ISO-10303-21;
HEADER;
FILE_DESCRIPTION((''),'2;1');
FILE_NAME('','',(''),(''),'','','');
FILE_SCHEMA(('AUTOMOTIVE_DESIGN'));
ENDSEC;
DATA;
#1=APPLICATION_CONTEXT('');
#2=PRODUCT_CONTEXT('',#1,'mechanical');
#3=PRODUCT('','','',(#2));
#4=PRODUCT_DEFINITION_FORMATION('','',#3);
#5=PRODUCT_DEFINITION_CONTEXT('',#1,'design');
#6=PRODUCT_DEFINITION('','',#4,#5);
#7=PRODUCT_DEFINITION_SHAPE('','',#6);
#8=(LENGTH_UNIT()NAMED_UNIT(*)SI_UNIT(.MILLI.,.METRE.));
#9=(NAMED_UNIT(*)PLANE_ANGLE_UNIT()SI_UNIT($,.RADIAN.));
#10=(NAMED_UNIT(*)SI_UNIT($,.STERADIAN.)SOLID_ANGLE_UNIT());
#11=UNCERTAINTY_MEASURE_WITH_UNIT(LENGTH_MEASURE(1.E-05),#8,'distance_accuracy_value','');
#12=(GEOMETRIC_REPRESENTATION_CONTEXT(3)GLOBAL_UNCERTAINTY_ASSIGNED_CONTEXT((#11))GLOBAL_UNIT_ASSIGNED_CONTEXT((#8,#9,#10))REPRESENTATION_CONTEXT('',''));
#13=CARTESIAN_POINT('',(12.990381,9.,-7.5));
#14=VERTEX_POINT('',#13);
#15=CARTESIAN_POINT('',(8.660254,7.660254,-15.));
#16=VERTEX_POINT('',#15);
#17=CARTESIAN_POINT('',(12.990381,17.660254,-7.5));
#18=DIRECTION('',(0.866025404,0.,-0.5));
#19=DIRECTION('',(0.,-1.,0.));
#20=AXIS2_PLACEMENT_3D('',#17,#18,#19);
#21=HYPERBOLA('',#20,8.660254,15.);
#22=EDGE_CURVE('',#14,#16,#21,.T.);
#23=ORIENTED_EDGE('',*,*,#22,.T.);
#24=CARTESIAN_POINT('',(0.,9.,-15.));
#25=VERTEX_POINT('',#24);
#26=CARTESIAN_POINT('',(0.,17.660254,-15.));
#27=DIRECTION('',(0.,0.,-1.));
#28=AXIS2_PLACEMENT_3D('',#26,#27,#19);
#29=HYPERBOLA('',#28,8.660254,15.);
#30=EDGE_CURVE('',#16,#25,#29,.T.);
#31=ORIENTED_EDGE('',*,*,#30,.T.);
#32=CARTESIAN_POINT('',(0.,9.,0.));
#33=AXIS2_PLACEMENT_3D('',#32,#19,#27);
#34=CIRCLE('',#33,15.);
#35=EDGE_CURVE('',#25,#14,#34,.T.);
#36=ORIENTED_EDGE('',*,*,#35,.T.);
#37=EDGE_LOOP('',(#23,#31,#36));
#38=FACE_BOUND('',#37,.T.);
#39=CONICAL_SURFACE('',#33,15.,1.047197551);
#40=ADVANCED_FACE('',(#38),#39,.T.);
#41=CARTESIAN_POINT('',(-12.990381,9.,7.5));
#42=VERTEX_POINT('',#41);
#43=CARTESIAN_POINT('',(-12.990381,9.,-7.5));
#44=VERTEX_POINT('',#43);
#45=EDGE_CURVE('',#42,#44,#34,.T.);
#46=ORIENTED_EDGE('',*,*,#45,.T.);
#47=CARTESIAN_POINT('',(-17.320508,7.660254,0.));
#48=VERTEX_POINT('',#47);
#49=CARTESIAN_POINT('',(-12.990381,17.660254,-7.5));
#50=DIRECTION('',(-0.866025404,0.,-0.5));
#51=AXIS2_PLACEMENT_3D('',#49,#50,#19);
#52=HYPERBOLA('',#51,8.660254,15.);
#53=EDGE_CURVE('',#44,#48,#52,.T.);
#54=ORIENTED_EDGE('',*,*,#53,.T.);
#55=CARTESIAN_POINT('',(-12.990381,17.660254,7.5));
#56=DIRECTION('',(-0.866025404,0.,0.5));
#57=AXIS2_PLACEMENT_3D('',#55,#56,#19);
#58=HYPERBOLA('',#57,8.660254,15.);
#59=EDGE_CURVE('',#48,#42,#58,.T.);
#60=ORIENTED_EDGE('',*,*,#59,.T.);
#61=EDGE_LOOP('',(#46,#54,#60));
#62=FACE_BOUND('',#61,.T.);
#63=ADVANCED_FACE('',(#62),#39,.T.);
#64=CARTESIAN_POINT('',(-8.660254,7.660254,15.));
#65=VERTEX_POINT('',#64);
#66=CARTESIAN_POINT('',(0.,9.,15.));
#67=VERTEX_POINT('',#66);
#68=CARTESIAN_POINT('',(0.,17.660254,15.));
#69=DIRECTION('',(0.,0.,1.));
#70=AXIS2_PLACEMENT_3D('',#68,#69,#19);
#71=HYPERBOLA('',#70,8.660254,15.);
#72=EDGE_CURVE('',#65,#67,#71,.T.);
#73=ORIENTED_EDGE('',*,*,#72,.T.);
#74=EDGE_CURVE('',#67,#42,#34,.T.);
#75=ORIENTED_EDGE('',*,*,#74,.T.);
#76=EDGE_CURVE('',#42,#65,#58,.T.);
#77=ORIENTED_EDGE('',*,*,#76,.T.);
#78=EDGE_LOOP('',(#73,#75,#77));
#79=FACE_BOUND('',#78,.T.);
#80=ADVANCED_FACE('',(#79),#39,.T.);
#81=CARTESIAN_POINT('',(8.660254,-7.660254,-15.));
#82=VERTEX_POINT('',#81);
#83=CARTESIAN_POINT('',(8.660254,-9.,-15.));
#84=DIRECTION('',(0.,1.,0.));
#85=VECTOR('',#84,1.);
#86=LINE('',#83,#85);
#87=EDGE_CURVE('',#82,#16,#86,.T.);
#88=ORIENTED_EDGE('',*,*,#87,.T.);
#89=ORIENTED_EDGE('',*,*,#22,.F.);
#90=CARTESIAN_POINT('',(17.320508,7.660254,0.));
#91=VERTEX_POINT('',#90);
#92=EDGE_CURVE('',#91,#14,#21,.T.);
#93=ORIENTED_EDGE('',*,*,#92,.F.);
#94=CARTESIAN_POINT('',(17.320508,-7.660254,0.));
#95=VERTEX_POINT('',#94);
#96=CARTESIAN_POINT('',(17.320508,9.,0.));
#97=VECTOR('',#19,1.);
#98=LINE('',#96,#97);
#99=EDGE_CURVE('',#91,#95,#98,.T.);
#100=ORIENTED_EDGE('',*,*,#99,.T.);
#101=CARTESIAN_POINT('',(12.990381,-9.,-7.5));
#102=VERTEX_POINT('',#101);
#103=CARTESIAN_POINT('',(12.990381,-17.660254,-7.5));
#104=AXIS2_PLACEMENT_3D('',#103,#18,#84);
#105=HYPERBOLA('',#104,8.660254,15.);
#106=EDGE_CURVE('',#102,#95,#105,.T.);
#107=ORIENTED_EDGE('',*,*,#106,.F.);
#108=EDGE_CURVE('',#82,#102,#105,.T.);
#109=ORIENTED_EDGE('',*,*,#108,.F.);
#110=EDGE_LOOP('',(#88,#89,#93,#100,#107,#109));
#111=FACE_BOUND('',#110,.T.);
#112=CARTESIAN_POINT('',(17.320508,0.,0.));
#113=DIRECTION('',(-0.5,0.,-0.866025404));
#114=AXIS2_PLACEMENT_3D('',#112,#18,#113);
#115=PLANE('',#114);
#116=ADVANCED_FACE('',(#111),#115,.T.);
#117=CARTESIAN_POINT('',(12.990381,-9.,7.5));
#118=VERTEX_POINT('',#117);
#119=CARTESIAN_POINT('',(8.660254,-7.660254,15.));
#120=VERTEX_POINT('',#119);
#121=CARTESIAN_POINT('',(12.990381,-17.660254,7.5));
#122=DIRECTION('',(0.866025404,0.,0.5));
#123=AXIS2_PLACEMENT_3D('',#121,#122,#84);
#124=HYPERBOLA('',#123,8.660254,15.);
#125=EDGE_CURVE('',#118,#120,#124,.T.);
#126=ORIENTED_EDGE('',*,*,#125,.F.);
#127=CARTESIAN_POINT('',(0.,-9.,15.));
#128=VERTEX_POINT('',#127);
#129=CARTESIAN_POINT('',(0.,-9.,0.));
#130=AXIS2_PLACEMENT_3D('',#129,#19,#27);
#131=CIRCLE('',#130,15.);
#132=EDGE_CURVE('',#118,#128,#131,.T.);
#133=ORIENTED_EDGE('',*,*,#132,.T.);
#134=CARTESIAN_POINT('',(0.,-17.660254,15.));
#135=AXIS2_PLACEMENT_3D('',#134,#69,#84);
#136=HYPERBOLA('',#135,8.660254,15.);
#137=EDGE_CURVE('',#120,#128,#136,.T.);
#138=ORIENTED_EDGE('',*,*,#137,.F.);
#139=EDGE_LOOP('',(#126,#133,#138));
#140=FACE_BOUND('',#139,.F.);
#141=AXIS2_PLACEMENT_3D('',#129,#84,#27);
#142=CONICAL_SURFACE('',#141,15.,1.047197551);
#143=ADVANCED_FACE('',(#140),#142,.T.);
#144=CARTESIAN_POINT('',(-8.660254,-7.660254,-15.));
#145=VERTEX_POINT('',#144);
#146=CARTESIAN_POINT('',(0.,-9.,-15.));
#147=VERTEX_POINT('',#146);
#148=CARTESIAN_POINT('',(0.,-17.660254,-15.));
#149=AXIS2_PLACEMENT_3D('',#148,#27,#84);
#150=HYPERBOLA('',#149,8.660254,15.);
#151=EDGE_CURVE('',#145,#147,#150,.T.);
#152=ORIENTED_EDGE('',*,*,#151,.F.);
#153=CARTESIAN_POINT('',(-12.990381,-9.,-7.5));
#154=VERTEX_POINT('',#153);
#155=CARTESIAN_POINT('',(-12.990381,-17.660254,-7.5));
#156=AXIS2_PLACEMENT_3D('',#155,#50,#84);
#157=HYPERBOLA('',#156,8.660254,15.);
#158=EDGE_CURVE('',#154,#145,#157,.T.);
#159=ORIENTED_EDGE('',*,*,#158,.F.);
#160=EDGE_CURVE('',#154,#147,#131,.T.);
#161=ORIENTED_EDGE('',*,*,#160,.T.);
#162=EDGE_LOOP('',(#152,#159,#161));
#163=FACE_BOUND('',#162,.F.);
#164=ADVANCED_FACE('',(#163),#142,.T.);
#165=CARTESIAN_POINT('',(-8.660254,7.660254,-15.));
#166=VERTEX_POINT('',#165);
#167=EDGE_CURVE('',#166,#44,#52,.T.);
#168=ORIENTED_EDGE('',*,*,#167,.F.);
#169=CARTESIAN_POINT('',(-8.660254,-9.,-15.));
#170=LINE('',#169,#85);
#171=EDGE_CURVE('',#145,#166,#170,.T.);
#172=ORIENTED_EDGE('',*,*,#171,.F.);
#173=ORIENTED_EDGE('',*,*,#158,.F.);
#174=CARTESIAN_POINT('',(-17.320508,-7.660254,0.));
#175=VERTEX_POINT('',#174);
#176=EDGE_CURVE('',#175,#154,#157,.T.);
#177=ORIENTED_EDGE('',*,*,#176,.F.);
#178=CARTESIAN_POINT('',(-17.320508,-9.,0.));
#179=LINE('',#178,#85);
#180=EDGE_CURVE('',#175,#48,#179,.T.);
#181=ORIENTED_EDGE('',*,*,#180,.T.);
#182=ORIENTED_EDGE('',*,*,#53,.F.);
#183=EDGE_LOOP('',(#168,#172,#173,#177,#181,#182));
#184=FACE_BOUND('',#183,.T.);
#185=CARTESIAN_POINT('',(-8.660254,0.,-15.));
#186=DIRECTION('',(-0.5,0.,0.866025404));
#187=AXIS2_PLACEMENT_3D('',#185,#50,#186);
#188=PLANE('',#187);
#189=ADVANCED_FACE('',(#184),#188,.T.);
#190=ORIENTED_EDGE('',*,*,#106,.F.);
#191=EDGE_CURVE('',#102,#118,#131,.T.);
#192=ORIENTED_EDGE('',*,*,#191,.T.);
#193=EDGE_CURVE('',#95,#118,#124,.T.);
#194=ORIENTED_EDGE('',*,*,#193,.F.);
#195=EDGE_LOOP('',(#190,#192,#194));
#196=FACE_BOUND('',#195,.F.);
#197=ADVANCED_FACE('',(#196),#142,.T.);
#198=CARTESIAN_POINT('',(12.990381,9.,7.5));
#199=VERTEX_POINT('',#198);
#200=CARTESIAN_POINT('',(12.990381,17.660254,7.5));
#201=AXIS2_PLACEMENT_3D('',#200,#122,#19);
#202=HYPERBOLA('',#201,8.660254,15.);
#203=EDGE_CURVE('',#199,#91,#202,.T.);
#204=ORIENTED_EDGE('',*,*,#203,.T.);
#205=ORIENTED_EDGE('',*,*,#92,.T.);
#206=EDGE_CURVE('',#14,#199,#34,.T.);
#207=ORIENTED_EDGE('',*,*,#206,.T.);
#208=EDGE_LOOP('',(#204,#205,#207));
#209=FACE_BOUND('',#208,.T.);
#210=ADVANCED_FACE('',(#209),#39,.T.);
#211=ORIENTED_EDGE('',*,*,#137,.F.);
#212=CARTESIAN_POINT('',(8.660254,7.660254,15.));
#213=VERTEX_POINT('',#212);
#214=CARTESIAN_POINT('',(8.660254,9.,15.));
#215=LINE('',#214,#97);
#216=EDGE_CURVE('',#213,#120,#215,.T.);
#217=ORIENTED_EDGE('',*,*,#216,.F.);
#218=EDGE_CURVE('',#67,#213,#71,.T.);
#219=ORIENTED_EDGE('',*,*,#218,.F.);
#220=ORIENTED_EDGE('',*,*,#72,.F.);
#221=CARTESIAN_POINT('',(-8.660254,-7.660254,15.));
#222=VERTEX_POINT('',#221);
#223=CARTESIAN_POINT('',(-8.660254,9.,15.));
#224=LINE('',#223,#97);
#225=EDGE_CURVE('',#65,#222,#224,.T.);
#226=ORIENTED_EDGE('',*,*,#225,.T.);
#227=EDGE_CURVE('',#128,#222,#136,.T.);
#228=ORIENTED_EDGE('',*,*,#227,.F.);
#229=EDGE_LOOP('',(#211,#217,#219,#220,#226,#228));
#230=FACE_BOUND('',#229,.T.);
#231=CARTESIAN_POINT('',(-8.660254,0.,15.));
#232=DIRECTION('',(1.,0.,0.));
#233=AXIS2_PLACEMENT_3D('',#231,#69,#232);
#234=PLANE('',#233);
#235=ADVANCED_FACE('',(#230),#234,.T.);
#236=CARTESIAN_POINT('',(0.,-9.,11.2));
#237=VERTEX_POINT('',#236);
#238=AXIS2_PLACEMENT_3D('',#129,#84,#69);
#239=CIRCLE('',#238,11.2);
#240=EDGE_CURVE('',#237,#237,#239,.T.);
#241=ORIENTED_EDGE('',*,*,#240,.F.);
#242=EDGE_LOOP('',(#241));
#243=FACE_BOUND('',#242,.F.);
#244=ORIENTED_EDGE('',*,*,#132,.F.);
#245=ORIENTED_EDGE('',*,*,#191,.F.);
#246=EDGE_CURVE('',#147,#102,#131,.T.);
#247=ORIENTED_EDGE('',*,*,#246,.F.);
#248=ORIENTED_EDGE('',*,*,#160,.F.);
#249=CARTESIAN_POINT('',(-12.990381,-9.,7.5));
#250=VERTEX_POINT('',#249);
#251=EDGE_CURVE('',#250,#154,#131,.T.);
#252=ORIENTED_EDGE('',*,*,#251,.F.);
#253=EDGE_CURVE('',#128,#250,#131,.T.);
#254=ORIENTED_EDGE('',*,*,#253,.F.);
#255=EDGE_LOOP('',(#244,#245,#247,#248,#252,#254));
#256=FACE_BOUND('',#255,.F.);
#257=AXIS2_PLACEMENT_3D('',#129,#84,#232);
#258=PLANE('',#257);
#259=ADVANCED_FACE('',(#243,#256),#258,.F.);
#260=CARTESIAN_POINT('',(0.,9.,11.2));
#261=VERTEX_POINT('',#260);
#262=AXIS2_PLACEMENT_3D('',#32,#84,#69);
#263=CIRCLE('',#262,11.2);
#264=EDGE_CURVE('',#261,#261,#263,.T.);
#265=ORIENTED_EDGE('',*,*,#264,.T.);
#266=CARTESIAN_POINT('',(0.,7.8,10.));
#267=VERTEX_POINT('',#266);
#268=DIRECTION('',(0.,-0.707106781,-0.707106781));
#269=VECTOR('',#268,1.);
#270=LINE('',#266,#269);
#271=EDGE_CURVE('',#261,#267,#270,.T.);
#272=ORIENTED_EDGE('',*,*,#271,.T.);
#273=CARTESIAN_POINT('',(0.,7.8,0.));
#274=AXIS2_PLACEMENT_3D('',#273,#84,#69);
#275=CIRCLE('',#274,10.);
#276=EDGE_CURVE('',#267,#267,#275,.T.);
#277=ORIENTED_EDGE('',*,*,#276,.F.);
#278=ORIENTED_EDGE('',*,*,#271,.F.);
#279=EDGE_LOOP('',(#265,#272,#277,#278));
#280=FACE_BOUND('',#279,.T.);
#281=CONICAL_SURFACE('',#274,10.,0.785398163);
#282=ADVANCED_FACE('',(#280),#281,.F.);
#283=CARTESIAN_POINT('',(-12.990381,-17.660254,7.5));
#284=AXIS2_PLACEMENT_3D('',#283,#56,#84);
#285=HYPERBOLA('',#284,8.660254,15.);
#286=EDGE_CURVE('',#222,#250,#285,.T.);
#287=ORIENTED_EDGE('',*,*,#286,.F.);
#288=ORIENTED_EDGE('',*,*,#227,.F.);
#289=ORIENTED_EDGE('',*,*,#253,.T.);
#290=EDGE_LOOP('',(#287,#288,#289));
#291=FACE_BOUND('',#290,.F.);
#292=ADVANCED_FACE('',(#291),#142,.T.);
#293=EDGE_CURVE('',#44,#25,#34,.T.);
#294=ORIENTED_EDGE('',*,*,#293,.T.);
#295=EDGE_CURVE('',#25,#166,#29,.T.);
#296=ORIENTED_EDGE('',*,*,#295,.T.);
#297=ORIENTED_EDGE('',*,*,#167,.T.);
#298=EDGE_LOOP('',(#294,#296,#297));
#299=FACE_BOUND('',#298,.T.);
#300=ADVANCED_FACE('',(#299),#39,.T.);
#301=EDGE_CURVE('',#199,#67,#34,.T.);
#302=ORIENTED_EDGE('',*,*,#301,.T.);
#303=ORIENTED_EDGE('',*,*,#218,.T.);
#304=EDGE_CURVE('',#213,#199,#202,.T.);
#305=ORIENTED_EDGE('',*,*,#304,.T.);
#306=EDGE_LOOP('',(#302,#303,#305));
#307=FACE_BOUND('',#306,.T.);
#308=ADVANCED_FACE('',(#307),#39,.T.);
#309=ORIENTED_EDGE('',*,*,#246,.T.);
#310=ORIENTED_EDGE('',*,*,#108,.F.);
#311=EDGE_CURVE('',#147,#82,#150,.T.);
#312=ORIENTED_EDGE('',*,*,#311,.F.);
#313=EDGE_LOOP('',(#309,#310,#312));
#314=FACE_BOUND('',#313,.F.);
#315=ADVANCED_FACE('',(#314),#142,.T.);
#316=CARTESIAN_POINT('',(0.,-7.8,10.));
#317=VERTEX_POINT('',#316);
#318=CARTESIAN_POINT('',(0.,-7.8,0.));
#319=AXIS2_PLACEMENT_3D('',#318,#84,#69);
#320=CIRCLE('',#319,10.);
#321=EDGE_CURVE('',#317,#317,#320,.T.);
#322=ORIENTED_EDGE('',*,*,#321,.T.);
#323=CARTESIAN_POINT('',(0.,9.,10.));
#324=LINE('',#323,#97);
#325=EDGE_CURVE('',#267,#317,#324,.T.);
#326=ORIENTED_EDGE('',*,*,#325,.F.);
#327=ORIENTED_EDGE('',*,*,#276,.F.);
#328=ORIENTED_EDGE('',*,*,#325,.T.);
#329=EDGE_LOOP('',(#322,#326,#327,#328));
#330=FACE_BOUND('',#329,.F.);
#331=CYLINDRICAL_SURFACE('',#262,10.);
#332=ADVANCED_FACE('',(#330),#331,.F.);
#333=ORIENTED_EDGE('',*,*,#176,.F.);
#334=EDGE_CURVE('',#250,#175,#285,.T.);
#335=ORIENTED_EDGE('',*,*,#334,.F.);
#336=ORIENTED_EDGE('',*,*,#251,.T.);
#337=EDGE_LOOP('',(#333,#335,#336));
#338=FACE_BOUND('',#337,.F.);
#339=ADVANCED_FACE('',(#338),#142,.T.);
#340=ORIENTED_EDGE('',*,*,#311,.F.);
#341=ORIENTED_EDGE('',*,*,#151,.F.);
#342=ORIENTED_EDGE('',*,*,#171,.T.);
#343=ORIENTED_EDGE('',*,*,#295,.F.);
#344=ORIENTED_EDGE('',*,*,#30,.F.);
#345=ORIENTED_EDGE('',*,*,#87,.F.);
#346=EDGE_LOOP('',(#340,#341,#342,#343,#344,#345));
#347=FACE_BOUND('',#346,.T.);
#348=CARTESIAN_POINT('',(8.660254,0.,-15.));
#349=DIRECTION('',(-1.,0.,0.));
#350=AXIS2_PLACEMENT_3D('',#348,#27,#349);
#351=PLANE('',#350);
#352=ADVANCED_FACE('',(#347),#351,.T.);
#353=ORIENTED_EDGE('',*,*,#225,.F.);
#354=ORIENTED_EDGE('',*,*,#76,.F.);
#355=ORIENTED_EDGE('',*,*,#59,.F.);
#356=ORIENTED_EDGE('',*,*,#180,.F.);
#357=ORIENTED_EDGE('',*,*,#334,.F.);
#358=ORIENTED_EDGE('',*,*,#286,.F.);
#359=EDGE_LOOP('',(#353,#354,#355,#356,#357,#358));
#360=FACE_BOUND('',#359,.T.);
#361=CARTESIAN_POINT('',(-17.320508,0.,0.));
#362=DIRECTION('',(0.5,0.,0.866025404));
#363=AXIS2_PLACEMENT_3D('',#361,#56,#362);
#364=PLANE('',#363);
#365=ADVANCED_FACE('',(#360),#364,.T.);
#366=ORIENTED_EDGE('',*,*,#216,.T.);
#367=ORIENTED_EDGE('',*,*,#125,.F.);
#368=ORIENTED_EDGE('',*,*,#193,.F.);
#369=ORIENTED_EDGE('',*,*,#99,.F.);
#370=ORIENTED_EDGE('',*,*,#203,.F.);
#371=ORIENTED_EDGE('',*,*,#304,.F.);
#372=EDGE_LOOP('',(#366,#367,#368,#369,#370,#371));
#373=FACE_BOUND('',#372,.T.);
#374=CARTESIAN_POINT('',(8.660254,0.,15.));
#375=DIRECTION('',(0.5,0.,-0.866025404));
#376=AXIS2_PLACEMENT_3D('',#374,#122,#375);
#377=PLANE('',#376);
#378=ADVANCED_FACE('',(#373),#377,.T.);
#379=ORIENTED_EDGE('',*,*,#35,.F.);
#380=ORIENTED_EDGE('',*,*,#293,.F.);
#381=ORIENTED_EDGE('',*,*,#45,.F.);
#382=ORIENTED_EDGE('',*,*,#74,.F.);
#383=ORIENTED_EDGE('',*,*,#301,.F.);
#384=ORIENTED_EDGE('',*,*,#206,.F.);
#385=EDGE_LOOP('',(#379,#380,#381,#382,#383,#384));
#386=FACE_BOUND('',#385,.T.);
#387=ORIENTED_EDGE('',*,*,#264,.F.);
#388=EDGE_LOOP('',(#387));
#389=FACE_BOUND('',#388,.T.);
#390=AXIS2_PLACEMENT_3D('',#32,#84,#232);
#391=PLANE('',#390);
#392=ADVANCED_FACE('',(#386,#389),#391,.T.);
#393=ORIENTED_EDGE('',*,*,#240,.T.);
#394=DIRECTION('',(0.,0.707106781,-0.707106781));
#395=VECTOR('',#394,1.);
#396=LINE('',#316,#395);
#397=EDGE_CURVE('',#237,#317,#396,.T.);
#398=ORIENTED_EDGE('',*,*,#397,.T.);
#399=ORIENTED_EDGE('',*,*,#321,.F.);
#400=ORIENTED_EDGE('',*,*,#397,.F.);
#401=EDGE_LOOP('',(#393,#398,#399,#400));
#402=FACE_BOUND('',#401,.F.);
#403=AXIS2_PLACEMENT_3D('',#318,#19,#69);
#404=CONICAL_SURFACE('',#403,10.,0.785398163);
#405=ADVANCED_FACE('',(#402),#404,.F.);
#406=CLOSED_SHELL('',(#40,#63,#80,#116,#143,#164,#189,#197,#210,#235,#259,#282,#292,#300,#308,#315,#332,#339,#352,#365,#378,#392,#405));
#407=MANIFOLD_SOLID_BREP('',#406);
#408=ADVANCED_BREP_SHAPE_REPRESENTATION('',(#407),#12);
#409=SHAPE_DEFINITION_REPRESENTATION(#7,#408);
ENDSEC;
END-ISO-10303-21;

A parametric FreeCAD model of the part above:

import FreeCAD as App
import Part
import Sketcher

V = App.Vector
Q = App.Units.Quantity


def edges_at(feature, points):
    """Names of the edges that pass closest to the given points."""
    edges = feature.Shape.Edges
    near = lambda p: min(range(len(edges)), key=lambda i: edges[i].distToShape(Part.Vertex(*p))[0])
    return sorted({f"Edge{near(p) + 1}" for p in points})


def add_polygon(sketch, points):
    """Adds a closed chain of lines whose ends are joined by coincident constraints."""
    first, n = sketch.GeometryCount, len(points)
    for a, b in zip(points, points[1:] + points[:1]):
        sketch.addGeometry(Part.LineSegment(App.Vector(*a, 0), App.Vector(*b, 0)), False)
    for i in range(n):
        sketch.addConstraint(Sketcher.Constraint("Coincident", first + i, 2, first + (i + 1) % n, 1))

doc = App.newDocument("Part")
body = doc.addObject("PartDesign::Body", "Body")

# Sketch on XZ plane
sketch1 = body.newObject("Sketcher::SketchObject", "Sketch")
sketch1.AttachmentSupport = (doc.getObject("XZ_Plane"), [""])
sketch1.MapMode = "FlatFace"
add_polygon(sketch1, [(17, 0), (9, -15), (-9, -15), (-17, 0), (-9, 15), (9, 15)])  # lines 0-5
sketch1.addConstraint([
    Sketcher.Constraint("Horizontal", 1),
    Sketcher.Constraint("Horizontal", 4),
    Sketcher.Constraint("Symmetric", 0, 2, 3, 2, -1, 1),
    Sketcher.Constraint("Symmetric", 2, 2, 5, 2, -1, 1),
    Sketcher.Constraint("PointOnObject", 2, 2, -1),
    Sketcher.Constraint("Parallel", 2, 5),
    Sketcher.Constraint("Vertical", 1, 2, 3, 2),
    Sketcher.Constraint("Angle", 0, Q("-120 deg")),
    Sketcher.Constraint("DistanceY", 0, 2, -1, 1, 15.0),
    Sketcher.Constraint("DistanceX", 1, 2, 1, 1, 17.320508),
])
pad1 = body.newObject("PartDesign::Pad", "Pad")
pad1.Profile = sketch1
pad1.Length = 18
pad1.Midplane = True

# Sketch on XZ plane
sketch2 = body.newObject("Sketcher::SketchObject", "Sketch001")
sketch2.AttachmentSupport = (doc.getObject("XZ_Plane"), [""])
sketch2.MapMode = "FlatFace"
sketch2.AttachmentOffset = App.Placement(V(0, 0, -9), App.Rotation())
sketch2.addGeometry(Part.Circle(V(0, 0, 0), V(0, 0, 1), 10), False)
sketch2.addConstraint([
    Sketcher.Constraint("Coincident", 0, 3, -1, 1),
    Sketcher.Constraint("Diameter", 0, 20.0),
])
pocket1 = body.newObject("PartDesign::Pocket", "Pocket")
pocket1.Profile = sketch2
pocket1.Type = "ThroughAll"
pocket1.Reversed = True
doc.recompute()

chamfer = body.newObject("PartDesign::Chamfer", "Chamfer")
chamfer.Base = (pocket1, edges_at(pocket1, [(0, -9, -10), (0, 9, -10)]))
chamfer.Size = 1.2

# Sketch on XY plane
sketch3 = body.newObject("Sketcher::SketchObject", "Sketch002")
sketch3.AttachmentSupport = (doc.getObject("XY_Plane"), [""])
sketch3.MapMode = "FlatFace"
add_polygon(sketch3, [(17.3, 9), (15, 9), (17.3, 7.7)])  # lines 0-2
sketch3.addConstraint([
    Sketcher.Constraint("Horizontal", 0),
    Sketcher.Constraint("Vertical", 2),
    Sketcher.Constraint("Angle", 1, Q("-30 deg")),
    Sketcher.Constraint("DistanceX", -1, 1, 0, 2, 15.0),
    Sketcher.Constraint("DistanceY", -1, 1, 0, 2, 9.0),
    Sketcher.Constraint("DistanceX", 0, 2, 0, 1, 2.320508),
])
groove = body.newObject("PartDesign::Groove", "Groove")
groove.Profile = sketch3
groove.ReferenceAxis = (sketch3, ["V_Axis"])
groove.Angle = 360
doc.recompute()

mirrored = body.newObject("PartDesign::Mirrored", "Mirrored")
mirrored.Originals = [groove]
mirrored.MirrorPlane = (doc.getObject("XZ_Plane"), [""])
body.Tip = mirrored

doc.recompute()
